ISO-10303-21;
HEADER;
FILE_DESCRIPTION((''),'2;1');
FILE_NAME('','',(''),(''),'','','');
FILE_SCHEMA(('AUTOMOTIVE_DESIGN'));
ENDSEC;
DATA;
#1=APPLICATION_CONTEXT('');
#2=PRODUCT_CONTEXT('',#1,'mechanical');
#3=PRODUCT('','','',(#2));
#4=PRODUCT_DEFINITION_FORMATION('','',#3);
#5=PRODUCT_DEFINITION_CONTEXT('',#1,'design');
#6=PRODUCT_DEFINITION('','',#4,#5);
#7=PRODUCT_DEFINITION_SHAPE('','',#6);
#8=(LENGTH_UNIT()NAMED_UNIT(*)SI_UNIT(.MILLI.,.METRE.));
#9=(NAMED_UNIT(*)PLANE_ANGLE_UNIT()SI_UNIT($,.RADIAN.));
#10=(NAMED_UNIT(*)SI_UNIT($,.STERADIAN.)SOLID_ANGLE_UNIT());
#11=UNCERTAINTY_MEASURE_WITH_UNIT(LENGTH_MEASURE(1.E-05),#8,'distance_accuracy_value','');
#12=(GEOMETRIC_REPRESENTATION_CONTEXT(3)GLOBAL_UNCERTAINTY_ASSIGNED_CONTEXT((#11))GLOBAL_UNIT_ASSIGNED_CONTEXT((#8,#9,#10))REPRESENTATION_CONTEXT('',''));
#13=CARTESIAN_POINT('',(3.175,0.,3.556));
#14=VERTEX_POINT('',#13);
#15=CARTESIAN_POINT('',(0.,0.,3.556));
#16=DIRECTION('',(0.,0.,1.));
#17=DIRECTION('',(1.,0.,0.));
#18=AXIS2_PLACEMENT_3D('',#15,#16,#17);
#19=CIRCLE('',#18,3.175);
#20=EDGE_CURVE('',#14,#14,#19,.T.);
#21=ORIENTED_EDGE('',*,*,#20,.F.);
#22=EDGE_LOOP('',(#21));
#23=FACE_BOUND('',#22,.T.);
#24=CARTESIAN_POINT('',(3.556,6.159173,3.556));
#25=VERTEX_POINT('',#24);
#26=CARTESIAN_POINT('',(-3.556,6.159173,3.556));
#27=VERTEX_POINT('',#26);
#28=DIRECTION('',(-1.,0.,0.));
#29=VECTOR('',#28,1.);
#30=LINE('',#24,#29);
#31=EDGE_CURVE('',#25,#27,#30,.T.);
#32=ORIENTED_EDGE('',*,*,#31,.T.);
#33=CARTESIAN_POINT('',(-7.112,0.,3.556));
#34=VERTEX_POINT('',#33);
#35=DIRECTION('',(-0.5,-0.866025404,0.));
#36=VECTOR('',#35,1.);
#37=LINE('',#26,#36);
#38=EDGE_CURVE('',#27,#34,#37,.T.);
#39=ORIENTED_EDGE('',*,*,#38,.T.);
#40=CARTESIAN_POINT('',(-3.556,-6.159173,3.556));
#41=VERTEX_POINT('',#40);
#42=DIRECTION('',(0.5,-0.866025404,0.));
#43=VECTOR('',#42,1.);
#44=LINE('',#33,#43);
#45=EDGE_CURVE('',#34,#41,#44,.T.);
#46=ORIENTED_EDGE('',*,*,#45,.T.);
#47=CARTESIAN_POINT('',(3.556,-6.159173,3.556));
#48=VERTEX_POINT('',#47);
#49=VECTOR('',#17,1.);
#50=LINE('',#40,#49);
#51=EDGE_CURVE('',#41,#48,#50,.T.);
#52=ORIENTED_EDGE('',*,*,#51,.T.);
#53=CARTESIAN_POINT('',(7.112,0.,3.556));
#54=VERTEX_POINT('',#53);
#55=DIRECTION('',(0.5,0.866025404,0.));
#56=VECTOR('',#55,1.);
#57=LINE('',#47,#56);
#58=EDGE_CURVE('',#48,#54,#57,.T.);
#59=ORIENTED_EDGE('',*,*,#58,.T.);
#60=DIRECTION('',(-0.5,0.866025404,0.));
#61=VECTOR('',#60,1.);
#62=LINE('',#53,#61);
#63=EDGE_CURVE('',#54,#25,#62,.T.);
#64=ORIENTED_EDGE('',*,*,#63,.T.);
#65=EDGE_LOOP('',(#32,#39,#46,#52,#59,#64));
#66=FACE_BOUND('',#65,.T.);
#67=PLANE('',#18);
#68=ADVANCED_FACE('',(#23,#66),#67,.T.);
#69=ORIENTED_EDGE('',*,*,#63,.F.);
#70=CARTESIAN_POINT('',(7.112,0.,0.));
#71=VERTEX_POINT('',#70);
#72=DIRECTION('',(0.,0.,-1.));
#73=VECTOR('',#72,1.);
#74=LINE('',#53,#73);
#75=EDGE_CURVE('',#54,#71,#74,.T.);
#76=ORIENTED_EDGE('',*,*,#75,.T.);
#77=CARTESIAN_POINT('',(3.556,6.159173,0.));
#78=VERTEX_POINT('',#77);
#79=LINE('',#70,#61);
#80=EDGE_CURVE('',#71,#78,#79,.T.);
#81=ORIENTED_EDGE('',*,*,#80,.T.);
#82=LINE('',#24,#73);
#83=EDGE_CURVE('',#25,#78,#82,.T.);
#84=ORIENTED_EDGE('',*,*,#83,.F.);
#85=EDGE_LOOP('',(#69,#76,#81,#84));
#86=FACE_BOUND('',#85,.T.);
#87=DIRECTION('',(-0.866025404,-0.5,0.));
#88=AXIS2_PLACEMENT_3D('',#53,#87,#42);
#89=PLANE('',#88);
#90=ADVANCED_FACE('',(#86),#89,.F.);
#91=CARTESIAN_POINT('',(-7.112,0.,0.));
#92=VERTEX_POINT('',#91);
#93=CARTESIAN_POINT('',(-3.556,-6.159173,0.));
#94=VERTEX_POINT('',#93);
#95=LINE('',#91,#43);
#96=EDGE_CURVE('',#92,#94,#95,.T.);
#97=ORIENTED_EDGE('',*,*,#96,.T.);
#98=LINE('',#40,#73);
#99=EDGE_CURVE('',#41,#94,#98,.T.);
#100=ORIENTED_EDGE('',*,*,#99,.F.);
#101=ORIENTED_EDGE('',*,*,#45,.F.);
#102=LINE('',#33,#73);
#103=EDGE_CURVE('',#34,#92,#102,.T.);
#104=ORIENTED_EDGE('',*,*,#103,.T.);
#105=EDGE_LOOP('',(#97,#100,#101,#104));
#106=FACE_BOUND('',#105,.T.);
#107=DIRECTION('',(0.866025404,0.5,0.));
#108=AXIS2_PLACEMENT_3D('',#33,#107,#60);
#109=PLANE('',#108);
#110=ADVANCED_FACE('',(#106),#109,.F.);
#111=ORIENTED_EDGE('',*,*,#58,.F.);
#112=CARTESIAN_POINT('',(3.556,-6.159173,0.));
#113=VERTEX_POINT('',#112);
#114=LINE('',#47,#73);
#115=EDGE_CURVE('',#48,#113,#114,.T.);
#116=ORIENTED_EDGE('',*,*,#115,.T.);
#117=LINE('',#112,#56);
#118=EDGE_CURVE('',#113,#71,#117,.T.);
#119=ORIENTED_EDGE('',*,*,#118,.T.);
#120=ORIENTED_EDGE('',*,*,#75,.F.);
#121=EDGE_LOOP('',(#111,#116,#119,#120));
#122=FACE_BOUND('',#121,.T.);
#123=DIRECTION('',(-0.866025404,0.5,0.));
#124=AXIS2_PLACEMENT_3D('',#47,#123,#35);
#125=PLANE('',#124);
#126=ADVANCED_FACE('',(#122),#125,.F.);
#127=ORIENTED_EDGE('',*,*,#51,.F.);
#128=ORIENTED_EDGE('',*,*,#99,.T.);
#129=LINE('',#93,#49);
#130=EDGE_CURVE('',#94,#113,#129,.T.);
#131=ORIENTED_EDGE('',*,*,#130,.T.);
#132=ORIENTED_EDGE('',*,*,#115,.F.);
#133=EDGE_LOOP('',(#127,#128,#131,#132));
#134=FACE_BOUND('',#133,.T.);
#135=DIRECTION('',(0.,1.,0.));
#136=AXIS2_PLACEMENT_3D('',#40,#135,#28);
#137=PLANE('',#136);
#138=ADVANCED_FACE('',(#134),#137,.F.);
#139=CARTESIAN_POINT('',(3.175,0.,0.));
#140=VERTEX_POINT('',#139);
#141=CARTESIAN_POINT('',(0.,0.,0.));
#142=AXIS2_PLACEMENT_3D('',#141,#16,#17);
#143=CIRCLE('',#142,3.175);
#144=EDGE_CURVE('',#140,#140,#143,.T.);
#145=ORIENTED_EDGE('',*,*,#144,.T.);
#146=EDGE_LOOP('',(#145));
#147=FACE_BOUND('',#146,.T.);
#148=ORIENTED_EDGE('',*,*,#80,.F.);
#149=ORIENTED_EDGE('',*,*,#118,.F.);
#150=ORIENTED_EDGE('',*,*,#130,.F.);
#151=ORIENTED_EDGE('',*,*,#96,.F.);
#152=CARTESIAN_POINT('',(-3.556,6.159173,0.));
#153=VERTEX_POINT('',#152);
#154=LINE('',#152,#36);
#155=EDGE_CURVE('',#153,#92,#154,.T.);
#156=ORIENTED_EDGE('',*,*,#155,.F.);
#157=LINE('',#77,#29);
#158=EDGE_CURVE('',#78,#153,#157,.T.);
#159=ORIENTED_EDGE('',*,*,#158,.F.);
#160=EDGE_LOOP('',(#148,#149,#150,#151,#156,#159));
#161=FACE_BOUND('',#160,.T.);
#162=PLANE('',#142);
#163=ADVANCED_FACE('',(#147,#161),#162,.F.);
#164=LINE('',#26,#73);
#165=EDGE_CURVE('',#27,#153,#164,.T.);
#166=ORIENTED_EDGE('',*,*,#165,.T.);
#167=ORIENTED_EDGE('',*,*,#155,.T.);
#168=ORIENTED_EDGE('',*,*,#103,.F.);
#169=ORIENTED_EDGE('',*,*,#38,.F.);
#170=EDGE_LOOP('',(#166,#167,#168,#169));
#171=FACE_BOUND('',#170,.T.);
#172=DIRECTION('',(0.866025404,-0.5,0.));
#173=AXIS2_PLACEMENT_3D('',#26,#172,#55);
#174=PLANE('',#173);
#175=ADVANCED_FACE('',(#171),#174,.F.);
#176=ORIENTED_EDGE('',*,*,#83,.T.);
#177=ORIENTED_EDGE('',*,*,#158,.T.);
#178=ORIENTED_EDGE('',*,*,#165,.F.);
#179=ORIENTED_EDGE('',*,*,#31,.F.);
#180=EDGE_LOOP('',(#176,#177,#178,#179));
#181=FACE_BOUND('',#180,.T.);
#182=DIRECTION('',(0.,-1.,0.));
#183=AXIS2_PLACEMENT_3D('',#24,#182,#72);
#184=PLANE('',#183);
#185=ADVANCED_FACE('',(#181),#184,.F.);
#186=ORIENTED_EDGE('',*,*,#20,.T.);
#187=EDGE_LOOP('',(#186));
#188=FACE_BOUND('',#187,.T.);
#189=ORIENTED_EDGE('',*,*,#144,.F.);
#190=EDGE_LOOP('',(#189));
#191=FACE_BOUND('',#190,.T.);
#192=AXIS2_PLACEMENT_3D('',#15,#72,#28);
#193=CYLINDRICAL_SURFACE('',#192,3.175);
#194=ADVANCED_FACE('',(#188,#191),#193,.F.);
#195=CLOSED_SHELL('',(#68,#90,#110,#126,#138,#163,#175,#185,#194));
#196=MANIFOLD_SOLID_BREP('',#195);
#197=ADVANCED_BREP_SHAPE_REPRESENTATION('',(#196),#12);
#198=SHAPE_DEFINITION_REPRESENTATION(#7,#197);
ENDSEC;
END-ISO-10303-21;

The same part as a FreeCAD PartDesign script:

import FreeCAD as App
import Part
import Sketcher

V = App.Vector
Q = App.Units.Quantity


def add_polygon(sketch, points):
    """Adds a closed chain of lines whose ends are joined by coincident constraints."""
    first, n = sketch.GeometryCount, len(points)
    for a, b in zip(points, points[1:] + points[:1]):
        sketch.addGeometry(Part.LineSegment(App.Vector(*a, 0), App.Vector(*b, 0)), False)
    for i in range(n):
        sketch.addConstraint(Sketcher.Constraint("Coincident", first + i, 2, first + (i + 1) % n, 1))

doc = App.newDocument("Part")
body = doc.addObject("PartDesign::Body", "Body")

# Sketch on XY plane
sketch1 = body.newObject("Sketcher::SketchObject", "Sketch")
sketch1.AttachmentSupport = (doc.getObject("XY_Plane"), [""])
sketch1.MapMode = "FlatFace"
add_polygon(sketch1, [(-7.1, 0), (-3.6, -6.2), (3.6, -6.2), (7.1, 0), (3.6, 6.2), (-3.6, 6.2)])  # lines 0-5
sketch1.addGeometry(Part.Circle(V(0, 0, 0), V(0, 0, 1), 3.2), False)  # 6
sketch1.addConstraint([
    Sketcher.Constraint("Horizontal", 1),
    Sketcher.Constraint("Horizontal", 4),
    Sketcher.Constraint("Coincident", 6, 3, -1, 1),
    Sketcher.Constraint("Symmetric", 0, 2, 3, 2, -1, 1),
    Sketcher.Constraint("Symmetric", 2, 2, 5, 2, -1, 1),
    Sketcher.Constraint("PointOnObject", 2, 2, -1),
    Sketcher.Constraint("Parallel", 2, 5),
    Sketcher.Constraint("Vertical", 1, 2, 3, 2),
    Sketcher.Constraint("Diameter", 6, Q("0.25 in")),
    Sketcher.Constraint("Angle", 0, Q("-60 deg")),
    Sketcher.Constraint("DistanceX", 1, 1, 1, 2, Q("0.28 in")),
    Sketcher.Constraint("Distance", 0, Q("0.28 in")),
])
pad1 = body.newObject("PartDesign::Pad", "Pad")
pad1.Profile = sketch1
pad1.Length = Q("0.14 in")

doc.recompute()
